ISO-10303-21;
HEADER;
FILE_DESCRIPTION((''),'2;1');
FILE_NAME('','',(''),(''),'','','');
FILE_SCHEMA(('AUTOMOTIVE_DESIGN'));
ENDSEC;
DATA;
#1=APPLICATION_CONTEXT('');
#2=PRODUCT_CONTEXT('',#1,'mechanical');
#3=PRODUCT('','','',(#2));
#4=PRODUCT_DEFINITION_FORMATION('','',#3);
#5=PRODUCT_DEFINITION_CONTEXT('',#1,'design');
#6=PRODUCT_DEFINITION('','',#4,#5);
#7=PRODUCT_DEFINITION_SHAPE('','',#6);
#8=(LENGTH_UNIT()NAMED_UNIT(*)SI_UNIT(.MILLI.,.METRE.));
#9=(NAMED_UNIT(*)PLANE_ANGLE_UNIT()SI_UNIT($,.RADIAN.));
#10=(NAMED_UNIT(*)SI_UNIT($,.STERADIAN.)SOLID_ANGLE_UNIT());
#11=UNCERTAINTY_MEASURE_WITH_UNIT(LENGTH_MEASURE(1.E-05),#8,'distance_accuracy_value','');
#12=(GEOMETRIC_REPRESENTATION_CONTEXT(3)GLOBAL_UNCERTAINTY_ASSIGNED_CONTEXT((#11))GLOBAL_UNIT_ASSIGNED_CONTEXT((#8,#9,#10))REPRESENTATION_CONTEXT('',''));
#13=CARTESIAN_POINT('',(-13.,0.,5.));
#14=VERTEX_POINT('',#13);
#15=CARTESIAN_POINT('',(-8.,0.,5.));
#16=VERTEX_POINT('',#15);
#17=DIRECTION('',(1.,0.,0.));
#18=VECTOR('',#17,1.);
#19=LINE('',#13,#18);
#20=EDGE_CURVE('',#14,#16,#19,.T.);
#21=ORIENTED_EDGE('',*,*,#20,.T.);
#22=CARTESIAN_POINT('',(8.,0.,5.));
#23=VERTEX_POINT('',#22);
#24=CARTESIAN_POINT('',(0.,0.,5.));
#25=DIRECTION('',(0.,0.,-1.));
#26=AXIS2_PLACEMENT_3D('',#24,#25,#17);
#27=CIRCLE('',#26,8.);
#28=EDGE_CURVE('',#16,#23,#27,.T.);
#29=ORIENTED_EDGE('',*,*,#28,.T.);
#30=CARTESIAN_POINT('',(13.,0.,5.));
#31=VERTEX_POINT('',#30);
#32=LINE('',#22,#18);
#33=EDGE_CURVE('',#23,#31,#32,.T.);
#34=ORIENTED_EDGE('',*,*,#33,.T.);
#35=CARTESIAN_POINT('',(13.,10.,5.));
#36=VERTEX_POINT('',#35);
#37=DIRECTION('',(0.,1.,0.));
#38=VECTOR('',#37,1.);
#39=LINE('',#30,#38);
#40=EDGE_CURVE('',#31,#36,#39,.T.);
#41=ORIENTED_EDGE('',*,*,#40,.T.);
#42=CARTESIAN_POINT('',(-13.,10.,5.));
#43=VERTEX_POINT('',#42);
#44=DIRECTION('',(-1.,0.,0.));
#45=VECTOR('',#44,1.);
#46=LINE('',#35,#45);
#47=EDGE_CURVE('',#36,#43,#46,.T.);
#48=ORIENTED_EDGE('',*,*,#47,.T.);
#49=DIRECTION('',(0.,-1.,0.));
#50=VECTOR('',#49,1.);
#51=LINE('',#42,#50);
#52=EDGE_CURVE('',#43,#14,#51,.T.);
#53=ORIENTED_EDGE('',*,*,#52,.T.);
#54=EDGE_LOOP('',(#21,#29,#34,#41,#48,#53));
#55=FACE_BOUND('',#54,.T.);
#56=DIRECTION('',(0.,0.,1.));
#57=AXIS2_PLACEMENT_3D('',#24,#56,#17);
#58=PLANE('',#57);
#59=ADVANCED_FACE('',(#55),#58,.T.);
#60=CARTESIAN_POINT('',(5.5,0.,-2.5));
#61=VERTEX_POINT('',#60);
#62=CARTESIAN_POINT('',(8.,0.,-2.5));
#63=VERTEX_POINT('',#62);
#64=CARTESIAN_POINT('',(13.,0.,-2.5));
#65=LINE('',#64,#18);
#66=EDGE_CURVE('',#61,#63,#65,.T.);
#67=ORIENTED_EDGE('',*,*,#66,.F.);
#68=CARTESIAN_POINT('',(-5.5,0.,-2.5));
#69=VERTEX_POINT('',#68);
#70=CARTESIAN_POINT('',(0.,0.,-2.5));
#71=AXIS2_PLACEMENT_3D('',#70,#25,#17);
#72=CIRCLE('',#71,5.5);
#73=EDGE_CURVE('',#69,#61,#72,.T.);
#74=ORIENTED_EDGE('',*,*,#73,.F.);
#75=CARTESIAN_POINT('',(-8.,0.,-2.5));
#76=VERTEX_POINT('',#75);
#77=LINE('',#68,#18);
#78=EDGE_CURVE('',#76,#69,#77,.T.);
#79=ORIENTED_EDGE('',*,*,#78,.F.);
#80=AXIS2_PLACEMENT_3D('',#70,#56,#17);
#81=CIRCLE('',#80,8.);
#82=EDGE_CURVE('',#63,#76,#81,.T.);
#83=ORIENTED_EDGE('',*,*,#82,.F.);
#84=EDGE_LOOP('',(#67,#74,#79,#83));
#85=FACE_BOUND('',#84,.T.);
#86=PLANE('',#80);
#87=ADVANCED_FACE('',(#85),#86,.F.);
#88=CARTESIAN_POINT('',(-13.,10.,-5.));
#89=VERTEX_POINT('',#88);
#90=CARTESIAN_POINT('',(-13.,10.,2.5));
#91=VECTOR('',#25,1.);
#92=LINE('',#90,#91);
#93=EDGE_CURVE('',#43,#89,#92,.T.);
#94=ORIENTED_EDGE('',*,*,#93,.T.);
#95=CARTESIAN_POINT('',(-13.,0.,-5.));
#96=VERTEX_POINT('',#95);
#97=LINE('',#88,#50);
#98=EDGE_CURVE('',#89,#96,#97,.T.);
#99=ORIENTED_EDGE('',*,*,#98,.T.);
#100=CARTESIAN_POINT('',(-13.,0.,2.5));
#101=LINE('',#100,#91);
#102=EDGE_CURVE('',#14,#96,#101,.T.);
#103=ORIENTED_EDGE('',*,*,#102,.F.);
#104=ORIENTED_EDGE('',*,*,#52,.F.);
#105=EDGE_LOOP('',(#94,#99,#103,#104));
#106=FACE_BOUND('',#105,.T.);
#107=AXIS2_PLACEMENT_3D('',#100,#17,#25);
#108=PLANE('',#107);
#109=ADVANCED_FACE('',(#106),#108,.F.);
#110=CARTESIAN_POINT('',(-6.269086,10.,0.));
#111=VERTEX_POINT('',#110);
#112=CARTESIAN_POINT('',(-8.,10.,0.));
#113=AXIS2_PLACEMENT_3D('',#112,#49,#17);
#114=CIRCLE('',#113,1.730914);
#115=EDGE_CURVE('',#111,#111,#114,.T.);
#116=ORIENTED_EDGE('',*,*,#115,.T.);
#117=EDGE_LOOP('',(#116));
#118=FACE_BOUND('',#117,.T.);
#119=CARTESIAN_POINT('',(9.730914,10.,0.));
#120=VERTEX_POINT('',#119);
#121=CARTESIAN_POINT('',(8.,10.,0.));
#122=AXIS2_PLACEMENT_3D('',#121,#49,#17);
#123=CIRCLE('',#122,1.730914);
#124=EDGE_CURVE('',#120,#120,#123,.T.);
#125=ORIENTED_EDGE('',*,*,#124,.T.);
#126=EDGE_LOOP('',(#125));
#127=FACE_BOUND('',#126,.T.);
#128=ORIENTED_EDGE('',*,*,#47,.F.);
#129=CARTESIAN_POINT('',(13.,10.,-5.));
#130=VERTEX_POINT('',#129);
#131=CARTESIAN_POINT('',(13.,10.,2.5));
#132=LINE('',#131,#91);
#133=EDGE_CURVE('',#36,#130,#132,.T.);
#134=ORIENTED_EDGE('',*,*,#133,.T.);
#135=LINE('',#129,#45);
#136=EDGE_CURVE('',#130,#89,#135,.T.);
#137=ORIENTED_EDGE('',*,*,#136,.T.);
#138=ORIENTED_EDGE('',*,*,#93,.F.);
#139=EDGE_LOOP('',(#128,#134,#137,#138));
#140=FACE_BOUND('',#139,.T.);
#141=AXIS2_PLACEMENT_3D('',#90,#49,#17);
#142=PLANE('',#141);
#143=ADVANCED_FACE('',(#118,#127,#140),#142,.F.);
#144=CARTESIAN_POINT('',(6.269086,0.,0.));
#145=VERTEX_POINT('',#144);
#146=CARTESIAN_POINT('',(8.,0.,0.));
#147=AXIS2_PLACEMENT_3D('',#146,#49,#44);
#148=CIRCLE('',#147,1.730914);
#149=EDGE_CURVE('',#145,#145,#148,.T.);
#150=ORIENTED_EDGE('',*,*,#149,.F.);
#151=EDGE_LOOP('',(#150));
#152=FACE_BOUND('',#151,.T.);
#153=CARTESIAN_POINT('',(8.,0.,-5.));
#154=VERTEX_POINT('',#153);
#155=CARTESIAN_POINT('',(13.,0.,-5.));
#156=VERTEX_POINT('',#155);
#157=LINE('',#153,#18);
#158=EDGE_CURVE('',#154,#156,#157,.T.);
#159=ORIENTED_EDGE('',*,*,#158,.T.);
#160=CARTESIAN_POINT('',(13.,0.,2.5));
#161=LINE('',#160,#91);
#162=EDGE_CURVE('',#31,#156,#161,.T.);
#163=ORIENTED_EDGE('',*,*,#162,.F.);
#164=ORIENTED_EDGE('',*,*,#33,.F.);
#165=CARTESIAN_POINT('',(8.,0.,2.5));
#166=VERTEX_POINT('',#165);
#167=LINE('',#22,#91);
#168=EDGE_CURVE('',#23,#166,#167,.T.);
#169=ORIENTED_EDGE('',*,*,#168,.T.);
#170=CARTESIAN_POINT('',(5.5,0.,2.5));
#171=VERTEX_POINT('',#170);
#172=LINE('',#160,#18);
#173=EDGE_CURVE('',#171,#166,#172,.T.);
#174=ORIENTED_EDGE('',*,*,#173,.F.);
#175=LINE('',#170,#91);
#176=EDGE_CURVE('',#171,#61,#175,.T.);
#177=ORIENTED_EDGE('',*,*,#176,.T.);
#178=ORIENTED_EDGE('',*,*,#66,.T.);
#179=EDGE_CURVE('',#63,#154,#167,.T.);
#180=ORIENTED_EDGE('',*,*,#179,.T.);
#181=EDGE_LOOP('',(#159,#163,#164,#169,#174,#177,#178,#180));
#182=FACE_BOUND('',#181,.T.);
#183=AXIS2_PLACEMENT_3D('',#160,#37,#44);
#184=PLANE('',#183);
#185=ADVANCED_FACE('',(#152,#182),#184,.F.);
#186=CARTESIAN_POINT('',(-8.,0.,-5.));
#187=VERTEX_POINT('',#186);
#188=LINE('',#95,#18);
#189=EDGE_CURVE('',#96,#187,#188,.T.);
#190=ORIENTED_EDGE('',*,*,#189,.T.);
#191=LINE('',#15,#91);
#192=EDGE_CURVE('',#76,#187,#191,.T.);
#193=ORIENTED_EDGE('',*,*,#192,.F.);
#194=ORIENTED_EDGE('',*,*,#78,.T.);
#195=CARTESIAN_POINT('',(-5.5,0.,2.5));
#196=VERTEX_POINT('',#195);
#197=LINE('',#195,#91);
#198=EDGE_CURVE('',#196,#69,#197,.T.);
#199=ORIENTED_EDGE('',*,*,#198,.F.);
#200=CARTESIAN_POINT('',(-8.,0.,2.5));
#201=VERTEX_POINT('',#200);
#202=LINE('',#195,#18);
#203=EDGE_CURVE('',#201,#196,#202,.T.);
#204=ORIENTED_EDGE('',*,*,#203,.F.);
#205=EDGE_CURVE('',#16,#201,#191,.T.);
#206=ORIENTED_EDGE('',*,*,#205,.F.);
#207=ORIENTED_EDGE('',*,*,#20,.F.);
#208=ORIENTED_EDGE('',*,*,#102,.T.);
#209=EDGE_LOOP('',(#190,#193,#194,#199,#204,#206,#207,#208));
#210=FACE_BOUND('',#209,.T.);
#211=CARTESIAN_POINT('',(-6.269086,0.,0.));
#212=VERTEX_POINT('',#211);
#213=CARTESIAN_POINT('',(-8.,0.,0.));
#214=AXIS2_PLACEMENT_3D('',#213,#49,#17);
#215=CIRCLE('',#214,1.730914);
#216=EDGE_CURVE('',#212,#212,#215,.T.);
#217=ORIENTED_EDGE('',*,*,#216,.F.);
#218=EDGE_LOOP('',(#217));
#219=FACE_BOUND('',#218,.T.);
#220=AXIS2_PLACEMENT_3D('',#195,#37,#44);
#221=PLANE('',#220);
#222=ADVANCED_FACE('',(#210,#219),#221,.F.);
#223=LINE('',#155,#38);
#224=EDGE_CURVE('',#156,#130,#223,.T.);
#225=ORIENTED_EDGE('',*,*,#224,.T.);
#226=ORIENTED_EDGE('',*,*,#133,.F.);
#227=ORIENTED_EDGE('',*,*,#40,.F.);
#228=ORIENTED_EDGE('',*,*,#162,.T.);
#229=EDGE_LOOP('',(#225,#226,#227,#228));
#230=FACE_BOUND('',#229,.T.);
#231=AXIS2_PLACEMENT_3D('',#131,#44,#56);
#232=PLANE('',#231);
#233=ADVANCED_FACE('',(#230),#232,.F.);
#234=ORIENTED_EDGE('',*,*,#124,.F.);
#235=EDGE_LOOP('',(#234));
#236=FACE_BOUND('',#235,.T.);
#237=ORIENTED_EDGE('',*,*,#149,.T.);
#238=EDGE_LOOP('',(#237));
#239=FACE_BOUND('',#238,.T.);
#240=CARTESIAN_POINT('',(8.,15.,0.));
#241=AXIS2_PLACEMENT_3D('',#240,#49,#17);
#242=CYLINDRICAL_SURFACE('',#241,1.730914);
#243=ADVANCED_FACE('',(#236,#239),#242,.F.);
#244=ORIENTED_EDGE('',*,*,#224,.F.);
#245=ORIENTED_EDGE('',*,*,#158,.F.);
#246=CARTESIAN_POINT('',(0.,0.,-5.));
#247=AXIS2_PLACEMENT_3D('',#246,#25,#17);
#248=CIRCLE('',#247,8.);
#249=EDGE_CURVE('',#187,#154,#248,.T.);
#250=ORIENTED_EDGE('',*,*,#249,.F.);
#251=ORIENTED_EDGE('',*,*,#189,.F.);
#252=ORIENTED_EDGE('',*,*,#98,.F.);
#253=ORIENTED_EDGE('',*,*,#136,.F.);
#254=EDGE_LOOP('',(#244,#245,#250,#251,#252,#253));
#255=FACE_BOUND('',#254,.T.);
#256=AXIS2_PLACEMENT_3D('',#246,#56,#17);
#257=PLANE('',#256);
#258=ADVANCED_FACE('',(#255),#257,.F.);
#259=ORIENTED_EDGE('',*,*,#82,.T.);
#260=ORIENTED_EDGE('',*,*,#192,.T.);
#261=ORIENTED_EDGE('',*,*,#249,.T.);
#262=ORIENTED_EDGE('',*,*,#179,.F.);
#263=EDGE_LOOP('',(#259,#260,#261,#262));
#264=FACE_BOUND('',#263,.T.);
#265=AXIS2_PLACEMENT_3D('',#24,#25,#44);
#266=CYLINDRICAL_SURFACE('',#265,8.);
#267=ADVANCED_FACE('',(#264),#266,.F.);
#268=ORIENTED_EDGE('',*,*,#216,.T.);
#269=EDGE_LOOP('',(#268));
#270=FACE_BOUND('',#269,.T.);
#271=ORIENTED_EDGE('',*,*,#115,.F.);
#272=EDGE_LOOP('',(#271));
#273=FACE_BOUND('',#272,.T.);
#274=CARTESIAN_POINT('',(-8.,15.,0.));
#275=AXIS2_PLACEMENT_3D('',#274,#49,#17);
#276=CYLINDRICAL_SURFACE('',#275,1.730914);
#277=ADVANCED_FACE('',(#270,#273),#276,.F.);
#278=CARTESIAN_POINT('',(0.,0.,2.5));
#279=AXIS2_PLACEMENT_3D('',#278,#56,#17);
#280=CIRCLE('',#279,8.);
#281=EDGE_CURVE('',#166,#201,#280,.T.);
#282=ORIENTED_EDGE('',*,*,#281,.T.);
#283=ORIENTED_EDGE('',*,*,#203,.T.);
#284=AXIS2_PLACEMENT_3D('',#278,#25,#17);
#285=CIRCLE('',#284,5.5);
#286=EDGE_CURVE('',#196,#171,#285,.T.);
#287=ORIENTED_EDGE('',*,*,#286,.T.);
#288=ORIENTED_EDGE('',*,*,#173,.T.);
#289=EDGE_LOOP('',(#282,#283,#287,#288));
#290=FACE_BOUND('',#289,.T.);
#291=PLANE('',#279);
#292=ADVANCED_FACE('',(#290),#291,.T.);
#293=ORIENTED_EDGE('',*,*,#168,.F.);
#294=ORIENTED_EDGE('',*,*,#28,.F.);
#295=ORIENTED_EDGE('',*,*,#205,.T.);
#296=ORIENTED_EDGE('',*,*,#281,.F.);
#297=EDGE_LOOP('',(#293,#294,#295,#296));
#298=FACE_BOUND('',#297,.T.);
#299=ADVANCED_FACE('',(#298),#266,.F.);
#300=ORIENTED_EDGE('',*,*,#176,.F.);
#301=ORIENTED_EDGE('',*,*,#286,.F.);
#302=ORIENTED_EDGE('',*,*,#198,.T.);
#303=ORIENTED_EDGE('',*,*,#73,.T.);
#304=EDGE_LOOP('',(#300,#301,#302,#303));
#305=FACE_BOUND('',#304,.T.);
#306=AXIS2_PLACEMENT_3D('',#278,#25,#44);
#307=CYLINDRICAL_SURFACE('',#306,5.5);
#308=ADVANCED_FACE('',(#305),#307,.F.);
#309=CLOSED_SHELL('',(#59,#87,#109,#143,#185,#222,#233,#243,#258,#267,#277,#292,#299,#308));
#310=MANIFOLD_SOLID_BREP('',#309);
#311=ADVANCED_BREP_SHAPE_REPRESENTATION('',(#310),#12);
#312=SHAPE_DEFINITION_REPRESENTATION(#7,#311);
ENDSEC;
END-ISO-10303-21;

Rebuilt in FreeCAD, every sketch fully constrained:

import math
import FreeCAD as App
import Part
import Sketcher

V = App.Vector
Q = App.Units.Quantity

doc = App.newDocument("Part")
params = doc.addObject("Spreadsheet::Sheet", "Params")
for row, (alias, value) in enumerate([
    ("sketch1_radius", "5.5 mm"),
    ("sketch1_width", "26 mm"),
    ("sketch1_height", "10 mm"),
    ("pad1_length", "5 mm"),
    ("sketch2_radius", "8 mm"),
    ("sketch2_width", "5 mm"),
    ("sketch2_height", "10 mm"),
    ("pad2_length", "10 mm"),
    ("pocket1_length", "15 mm"),
], start=1):
    params.set(f"A{row}", alias)
    params.set(f"B{row}", "=" + value)
    params.setAlias(f"B{row}", alias)

body = doc.addObject("PartDesign::Body", "Body")

# Sketch on XY plane
sketch1 = doc.addObject("Sketcher::SketchObject", "Sketch")
body.addObject(sketch1)
sketch1.AttachmentSupport = (doc.XY_Plane, [""])
sketch1.MapMode = "FlatFace"
sketch1.addGeometry([
    Part.LineSegment(V(-13, 0, 0), V(-6, 0, 0)),  # 0
    Part.ArcOfCircle(Part.Circle(V(0, 0, 0), V(0, 0, 1), 6), math.radians(0), math.radians(180)),  # 1
    Part.LineSegment(V(6, 0, 0), V(13, 0, 0)),  # 2
    Part.LineSegment(V(13, 0, 0), V(13, 10, 0)),  # 3
    Part.LineSegment(V(13, 10, 0), V(-13, 10, 0)),  # 4
    Part.LineSegment(V(-13, 10, 0), V(-13, 0, 0)),  # 5
], False)
sketch1.addConstraint([
    Sketcher.Constraint("Coincident", 0, 2, 1, 2),
    Sketcher.Constraint("Coincident", 1, 1, 2, 1),
    Sketcher.Constraint("Coincident", 2, 2, 3, 1),
    Sketcher.Constraint("Coincident", 3, 2, 4, 1),
    Sketcher.Constraint("Coincident", 4, 2, 5, 1),
    Sketcher.Constraint("Coincident", 5, 2, 0, 1),
    Sketcher.Constraint("Horizontal", 0),
    Sketcher.Constraint("Horizontal", 2),
    Sketcher.Constraint("Vertical", 3),
    Sketcher.Constraint("Horizontal", 4),
    Sketcher.Constraint("Vertical", 5),
    Sketcher.Constraint("Coincident", 1, 3, -1, 1),
    Sketcher.Constraint("Symmetric", 2, 2, 5, 2, -1, 1),
    Sketcher.Constraint("PointOnObject", 0, 2, -1),
    Sketcher.Constraint("Radius", 1, Q("5.5 mm")),
    Sketcher.Constraint("DistanceX", 4, 2, 4, 1, Q("26 mm")),
    Sketcher.Constraint("DistanceY", 3, 1, 3, 2, Q("10 mm")),
])
sketch1.setExpression("Constraints[14]", "Params.sketch1_radius")
sketch1.setExpression("Constraints[15]", "Params.sketch1_width")
sketch1.setExpression("Constraints[16]", "Params.sketch1_height")
pad1 = doc.addObject("PartDesign::Pad", "Pad")
body.addObject(pad1)
pad1.Profile = sketch1
pad1.setExpression("Length", "Params.pad1_length")
pad1.Midplane = True

# Sketch on XY plane
sketch2 = doc.addObject("Sketcher::SketchObject", "Sketch001")
body.addObject(sketch2)
sketch2.AttachmentSupport = (doc.XY_Plane, [""])
sketch2.MapMode = "FlatFace"
sketch2.addGeometry([
    Part.LineSegment(V(-13, 10, 0), V(-13, 0, 0)),  # 0
    Part.LineSegment(V(-13, 0, 0), V(-8, 0, 0)),  # 1
    Part.ArcOfCircle(Part.Circle(V(0, 0, 0), V(0, 0, 1), 8), math.radians(0), math.radians(180)),  # 2
    Part.LineSegment(V(8, 0, 0), V(13, 0, 0)),  # 3
    Part.LineSegment(V(13, 0, 0), V(13, 10, 0)),  # 4
    Part.LineSegment(V(13, 10, 0), V(-13, 10, 0)),  # 5
], False)
sketch2.addConstraint([
    Sketcher.Constraint("Coincident", 0, 2, 1, 1),
    Sketcher.Constraint("Coincident", 1, 2, 2, 2),
    Sketcher.Constraint("Coincident", 2, 1, 3, 1),
    Sketcher.Constraint("Coincident", 3, 2, 4, 1),
    Sketcher.Constraint("Coincident", 4, 2, 5, 1),
    Sketcher.Constraint("Coincident", 5, 2, 0, 1),
    Sketcher.Constraint("Vertical", 0),
    Sketcher.Constraint("Horizontal", 1),
    Sketcher.Constraint("Horizontal", 3),
    Sketcher.Constraint("Vertical", 4),
    Sketcher.Constraint("Horizontal", 5),
    Sketcher.Constraint("Coincident", 2, 3, -1, 1),
    Sketcher.Constraint("Symmetric", 0, 2, 3, 2, -1, 1),
    Sketcher.Constraint("PointOnObject", 0, 2, -1),
    Sketcher.Constraint("Radius", 2, Q("8 mm")),
    Sketcher.Constraint("DistanceX", 1, 1, 1, 2, Q("5 mm")),
    Sketcher.Constraint("DistanceY", 0, 2, 0, 1, Q("10 mm")),
])
sketch2.setExpression("Constraints[14]", "Params.sketch2_radius")
sketch2.setExpression("Constraints[15]", "Params.sketch2_width")
sketch2.setExpression("Constraints[16]", "Params.sketch2_height")
pad2 = doc.addObject("PartDesign::Pad", "Pad001")
body.addObject(pad2)
pad2.Profile = sketch2
pad2.setExpression("Length", "Params.pad2_length")
pad2.Midplane = True

# Sketch on XZ plane
sketch3 = doc.addObject("Sketcher::SketchObject", "Sketch002")
body.addObject(sketch3)
sketch3.AttachmentSupport = (doc.XZ_Plane, [""])
sketch3.MapMode = "FlatFace"
sketch3.addGeometry([
    Part.Circle(V(-8, 0, 0), V(0, 0, 1), 1.7),
    Part.Circle(V(8, 0, 0), V(0, 0, 1), 1.7),
], False)
sketch3.addConstraint([
    Sketcher.Constraint("Equal", 0, 1),
    Sketcher.Constraint("Symmetric", 0, 3, 1, 3, -1, 1),
    Sketcher.Constraint("PointOnObject", 0, 3, -1),
    Sketcher.Constraint("DistanceX", 0, 3, -1, 1, Q("8 mm")),
    Sketcher.Constraint("Diameter", 0, Q("3.461828 mm")),
])
pocket1 = doc.addObject("PartDesign::Pocket", "Pocket")
body.addObject(pocket1)
pocket1.Profile = sketch3
pocket1.setExpression("Length", "Params.pocket1_length")

doc.recompute()
